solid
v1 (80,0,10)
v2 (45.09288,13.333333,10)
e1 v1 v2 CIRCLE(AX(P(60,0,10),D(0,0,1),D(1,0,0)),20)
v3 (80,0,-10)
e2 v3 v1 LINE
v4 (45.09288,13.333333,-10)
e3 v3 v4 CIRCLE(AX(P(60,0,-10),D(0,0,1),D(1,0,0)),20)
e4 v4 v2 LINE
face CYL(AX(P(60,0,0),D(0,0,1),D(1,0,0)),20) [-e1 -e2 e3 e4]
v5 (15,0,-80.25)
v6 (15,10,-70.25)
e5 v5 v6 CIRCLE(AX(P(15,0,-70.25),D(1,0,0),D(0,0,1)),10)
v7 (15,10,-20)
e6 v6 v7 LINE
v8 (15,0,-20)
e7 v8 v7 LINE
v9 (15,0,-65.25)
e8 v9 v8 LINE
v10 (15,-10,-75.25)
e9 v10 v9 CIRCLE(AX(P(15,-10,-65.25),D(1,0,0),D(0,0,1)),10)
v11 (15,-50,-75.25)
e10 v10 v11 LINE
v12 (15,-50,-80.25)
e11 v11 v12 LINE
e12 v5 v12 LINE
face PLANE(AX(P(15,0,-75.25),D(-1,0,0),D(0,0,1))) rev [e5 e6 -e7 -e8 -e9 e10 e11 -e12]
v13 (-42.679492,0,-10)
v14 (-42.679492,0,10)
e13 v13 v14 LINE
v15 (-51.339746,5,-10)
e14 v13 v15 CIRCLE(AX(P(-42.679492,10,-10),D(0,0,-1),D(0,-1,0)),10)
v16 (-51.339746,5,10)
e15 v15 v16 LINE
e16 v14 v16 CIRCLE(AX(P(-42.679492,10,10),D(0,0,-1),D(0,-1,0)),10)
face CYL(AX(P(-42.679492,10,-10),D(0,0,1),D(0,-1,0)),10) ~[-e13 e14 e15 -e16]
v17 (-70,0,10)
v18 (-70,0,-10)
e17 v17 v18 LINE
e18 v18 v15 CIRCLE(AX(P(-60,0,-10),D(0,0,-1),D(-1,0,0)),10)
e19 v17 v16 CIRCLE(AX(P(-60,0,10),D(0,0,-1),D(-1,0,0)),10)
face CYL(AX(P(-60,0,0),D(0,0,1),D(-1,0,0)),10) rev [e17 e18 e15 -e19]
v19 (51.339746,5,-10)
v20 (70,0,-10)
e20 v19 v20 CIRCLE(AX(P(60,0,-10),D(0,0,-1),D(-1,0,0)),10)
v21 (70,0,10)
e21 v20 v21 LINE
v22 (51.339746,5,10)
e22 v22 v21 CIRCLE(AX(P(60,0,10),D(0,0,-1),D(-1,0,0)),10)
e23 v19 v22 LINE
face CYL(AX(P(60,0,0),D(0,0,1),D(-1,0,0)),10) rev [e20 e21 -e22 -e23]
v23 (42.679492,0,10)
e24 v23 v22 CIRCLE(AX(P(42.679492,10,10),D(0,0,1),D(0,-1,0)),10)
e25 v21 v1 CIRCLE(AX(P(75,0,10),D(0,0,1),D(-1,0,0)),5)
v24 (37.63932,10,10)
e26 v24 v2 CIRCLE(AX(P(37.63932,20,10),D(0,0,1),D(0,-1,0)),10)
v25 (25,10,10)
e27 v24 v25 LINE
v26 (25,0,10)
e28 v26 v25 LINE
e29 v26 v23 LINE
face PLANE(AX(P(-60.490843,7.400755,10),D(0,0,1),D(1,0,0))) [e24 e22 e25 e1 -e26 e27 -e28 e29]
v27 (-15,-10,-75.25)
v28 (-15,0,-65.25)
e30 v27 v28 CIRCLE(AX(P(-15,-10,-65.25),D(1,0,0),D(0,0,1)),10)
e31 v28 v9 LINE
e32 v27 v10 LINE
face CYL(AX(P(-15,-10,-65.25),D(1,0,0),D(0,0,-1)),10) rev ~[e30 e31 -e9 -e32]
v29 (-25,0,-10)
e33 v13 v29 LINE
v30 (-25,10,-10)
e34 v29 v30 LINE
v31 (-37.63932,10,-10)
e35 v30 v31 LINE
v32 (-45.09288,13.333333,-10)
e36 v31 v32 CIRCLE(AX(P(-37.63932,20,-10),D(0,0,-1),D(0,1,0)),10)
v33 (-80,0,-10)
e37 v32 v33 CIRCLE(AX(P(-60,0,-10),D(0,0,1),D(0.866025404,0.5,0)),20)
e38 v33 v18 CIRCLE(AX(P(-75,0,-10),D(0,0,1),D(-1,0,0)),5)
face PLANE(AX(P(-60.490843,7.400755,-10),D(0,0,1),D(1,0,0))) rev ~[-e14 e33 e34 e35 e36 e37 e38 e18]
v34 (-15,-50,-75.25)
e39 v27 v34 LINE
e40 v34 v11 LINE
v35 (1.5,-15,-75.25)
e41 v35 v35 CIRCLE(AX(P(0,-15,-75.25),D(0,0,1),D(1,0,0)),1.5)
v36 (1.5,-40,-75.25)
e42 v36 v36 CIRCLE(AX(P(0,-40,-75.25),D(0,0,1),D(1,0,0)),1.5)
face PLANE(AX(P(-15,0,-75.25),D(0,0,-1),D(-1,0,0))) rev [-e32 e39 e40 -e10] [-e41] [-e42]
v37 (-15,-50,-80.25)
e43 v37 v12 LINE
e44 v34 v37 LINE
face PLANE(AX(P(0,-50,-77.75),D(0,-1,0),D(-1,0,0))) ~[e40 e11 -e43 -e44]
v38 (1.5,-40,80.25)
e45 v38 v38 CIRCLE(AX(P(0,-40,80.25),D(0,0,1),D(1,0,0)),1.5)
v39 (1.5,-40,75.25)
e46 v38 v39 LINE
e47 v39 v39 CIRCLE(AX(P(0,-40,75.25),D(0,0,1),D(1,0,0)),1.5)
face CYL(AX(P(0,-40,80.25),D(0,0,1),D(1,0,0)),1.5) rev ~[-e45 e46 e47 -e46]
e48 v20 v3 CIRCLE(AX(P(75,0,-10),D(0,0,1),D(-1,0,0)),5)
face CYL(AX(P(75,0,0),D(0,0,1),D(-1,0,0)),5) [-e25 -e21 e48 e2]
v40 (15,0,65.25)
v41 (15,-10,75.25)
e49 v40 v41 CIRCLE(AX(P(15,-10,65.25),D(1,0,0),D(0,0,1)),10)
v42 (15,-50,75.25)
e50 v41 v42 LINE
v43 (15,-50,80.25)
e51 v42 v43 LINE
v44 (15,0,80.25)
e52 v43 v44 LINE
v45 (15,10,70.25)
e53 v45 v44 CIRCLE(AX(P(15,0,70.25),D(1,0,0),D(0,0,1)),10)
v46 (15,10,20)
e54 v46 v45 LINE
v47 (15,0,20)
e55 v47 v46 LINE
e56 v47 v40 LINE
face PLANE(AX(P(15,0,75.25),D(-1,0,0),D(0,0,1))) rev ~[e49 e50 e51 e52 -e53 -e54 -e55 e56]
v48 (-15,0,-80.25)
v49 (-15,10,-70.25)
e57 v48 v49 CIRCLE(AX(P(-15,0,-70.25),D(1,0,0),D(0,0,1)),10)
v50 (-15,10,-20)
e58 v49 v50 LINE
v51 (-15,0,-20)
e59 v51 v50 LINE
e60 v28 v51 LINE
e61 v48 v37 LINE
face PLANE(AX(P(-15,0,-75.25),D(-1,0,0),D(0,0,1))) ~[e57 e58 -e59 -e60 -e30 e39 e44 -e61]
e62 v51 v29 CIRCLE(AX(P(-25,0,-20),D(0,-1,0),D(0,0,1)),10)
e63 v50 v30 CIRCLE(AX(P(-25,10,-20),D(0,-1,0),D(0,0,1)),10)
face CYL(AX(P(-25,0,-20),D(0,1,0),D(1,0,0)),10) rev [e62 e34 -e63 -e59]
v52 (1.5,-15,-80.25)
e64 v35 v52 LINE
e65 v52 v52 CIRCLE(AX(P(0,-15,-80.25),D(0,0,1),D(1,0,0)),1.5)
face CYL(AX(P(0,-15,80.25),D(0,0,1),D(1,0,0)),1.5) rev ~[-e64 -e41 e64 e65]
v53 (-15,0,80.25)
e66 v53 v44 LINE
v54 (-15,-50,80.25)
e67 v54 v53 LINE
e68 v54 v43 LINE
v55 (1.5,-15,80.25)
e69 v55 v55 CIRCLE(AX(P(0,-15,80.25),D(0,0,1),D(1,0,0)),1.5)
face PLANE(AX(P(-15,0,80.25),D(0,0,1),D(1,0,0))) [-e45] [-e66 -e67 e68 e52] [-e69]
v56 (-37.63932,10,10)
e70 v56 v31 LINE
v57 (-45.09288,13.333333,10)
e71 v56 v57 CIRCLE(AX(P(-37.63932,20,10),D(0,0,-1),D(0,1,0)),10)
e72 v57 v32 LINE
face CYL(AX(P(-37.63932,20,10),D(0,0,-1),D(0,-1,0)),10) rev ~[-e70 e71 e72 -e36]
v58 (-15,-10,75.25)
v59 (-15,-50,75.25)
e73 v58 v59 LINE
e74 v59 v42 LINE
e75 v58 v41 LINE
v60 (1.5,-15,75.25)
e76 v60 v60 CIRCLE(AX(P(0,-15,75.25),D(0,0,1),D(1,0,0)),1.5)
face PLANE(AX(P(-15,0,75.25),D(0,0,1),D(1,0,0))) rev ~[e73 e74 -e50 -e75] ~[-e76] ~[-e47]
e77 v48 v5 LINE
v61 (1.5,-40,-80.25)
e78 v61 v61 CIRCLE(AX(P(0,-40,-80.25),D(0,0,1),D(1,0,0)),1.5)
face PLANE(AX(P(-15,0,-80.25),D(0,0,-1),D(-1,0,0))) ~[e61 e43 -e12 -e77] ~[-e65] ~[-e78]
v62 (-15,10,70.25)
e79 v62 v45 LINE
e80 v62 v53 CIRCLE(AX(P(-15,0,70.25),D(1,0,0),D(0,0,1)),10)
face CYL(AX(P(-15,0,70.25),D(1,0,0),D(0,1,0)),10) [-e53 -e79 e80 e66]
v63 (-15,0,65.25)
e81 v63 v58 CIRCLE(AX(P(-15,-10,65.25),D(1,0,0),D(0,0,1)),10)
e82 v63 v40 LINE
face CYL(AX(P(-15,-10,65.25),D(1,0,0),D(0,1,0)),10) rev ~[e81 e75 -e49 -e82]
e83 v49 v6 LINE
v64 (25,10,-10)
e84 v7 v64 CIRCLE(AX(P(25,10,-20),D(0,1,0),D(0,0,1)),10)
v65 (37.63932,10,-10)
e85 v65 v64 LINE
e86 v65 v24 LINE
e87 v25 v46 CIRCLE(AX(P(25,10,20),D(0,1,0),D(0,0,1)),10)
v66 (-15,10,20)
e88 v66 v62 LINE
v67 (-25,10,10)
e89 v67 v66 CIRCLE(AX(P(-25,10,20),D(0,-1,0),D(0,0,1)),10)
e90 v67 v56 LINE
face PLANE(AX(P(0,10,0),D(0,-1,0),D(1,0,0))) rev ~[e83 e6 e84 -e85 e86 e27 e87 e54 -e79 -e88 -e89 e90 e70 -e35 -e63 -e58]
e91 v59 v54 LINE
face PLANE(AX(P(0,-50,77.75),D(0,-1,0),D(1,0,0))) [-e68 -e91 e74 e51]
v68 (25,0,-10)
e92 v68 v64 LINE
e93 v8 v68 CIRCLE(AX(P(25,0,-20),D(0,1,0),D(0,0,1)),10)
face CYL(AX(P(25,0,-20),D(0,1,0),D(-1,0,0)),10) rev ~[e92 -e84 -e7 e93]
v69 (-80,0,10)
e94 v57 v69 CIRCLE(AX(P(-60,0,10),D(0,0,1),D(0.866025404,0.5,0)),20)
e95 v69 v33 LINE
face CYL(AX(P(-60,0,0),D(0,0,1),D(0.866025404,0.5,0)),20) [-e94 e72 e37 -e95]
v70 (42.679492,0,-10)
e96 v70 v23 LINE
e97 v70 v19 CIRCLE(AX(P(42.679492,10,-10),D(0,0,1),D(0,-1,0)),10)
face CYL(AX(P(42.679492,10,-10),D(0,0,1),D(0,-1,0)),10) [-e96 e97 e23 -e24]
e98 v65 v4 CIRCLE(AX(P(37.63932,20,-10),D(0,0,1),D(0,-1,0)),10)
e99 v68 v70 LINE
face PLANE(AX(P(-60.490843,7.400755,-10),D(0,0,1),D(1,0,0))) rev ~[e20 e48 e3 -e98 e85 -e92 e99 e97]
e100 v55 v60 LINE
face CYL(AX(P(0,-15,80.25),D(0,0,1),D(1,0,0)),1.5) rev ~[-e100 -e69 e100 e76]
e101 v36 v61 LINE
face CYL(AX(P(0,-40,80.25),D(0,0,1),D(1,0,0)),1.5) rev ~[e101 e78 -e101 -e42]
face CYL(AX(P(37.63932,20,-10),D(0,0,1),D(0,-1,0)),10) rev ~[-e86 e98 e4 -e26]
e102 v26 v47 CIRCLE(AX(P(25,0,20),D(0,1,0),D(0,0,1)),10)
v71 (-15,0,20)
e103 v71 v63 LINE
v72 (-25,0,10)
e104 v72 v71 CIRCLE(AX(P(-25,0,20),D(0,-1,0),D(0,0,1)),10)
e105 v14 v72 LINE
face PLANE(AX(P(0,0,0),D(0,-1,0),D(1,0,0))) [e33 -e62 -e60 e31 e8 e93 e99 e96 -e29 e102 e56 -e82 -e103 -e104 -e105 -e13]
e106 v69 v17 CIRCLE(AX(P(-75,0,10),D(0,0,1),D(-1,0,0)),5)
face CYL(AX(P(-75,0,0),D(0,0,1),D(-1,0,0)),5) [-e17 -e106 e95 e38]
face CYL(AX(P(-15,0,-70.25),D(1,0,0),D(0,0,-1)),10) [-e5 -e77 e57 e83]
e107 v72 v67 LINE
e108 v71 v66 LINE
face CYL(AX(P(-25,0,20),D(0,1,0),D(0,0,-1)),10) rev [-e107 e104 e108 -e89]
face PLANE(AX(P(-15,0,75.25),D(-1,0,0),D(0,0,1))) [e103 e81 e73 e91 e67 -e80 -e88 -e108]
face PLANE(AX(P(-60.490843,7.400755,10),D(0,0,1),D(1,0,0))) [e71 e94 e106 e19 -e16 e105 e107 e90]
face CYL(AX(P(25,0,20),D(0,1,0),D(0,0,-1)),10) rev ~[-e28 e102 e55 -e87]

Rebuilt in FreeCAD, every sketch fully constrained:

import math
import FreeCAD as App
import Part
import Sketcher
Q = App.Units.Quantity


def edges_at(feature, points):
    """Names of the edges that pass closest to the given points."""
    edges = feature.Shape.Edges
    near = lambda p: min(range(len(edges)), key=lambda i: edges[i].distToShape(Part.Vertex(*p))[0])
    return sorted({f"Edge{near(p) + 1}" for p in points})

doc = App.newDocument("Part")
body = doc.addObject("PartDesign::Body", "Body")

sketch1 = body.newObject("Sketcher::SketchObject", "Sketch")
sketch1.AttachmentSupport = (doc.getObject("XY_Plane"), [""])
sketch1.MapMode = "FlatFace"
sketch1.addGeometry([
    Part.ArcOfCircle(Part.Circle(App.Vector(-60, 0, 0), App.Vector(0, 0, 1), 10), math.radians(0), math.radians(180)),
    Part.LineSegment(App.Vector(-50, 0, 0), App.Vector(50, 0, 0)),
    Part.ArcOfCircle(Part.Circle(App.Vector(60, 0, 0), App.Vector(0, 0, 1), 10), math.radians(0), math.radians(180)),
    Part.ArcOfCircle(Part.Circle(App.Vector(75, 0, 0), App.Vector(0, 0, 1), 5), math.radians(180), math.radians(360)),
    Part.ArcOfCircle(Part.Circle(App.Vector(60, 0, 0), App.Vector(0, 0, 1), 20), math.radians(0), math.radians(150)),
    Part.LineSegment(App.Vector(42.679492, 10, 0), App.Vector(-42.679492, 10, 0)),
    Part.ArcOfCircle(Part.Circle(App.Vector(-60, 0, 0), App.Vector(0, 0, 1), 20), math.radians(30), math.radians(180)),
    Part.ArcOfCircle(Part.Circle(App.Vector(-75, 0, 0), App.Vector(0, 0, 1), 5), math.radians(180), math.radians(360)),
], False)
sketch1.addConstraint([
    Sketcher.Constraint("Coincident", 0, 1, 1, 1),
    Sketcher.Constraint("Coincident", 1, 2, 2, 2),
    Sketcher.Constraint("Tangent", 2, 1, 3, 1),
    Sketcher.Constraint("Tangent", 3, 2, 4, 1),
    Sketcher.Constraint("Coincident", 4, 2, 5, 1),
    Sketcher.Constraint("Coincident", 5, 2, 6, 1),
    Sketcher.Constraint("Tangent", 6, 2, 7, 1),
    Sketcher.Constraint("Tangent", 7, 2, 0, 2),
    Sketcher.Constraint("Horizontal", 1),
    Sketcher.Constraint("Horizontal", 5),
    Sketcher.Constraint("Coincident", 4, 3, 2, 3),
    Sketcher.Constraint("Coincident", 6, 3, 0, 3),
    Sketcher.Constraint("Equal", 0, 2),
    Sketcher.Constraint("Equal", 4, 6),
    Sketcher.Constraint("Symmetric", 0, 3, 2, 3, -1, 1),
    Sketcher.Constraint("PointOnObject", 0, 3, -1),
    Sketcher.Constraint("PointOnObject", 3, 3, -1),
    Sketcher.Constraint("PointOnObject", 7, 3, -1),
    Sketcher.Constraint("PointOnObject", 0, 1, -1),
    Sketcher.Constraint("Radius", 0, Q("10 mm")),
    Sketcher.Constraint("Radius", 3, Q("5 mm")),
    Sketcher.Constraint("DistanceX", 1, 1, 1, 2, Q("100 mm")),
    Sketcher.Constraint("DistanceY", -1, 1, 4, 2, Q("10 mm")),
])
pad1 = body.newObject("PartDesign::Pad", "Pad")
pad1.Profile = sketch1
pad1.Length = 20
pad1.Midplane = True

sketch2 = body.newObject("Sketcher::SketchObject", "Sketch001")
sketch2.AttachmentSupport = (doc.getObject("XZ_Plane"), [""])
sketch2.MapMode = "FlatFace"
sketch2.addGeometry([
    Part.LineSegment(App.Vector(-15, 80.25, 0), App.Vector(-15, -80.25, 0)),
    Part.LineSegment(App.Vector(-15, -80.25, 0), App.Vector(15, -80.25, 0)),
    Part.LineSegment(App.Vector(15, -80.25, 0), App.Vector(15, 80.25, 0)),
    Part.LineSegment(App.Vector(15, 80.25, 0), App.Vector(-15, 80.25, 0)),
], False)
sketch2.addConstraint([
    Sketcher.Constraint("Coincident", 0, 2, 1, 1),
    Sketcher.Constraint("Coincident", 1, 2, 2, 1),
    Sketcher.Constraint("Coincident", 2, 2, 3, 1),
    Sketcher.Constraint("Coincident", 3, 2, 0, 1),
    Sketcher.Constraint("Vertical", 0),
    Sketcher.Constraint("Horizontal", 1),
    Sketcher.Constraint("Vertical", 2),
    Sketcher.Constraint("Horizontal", 3),
    Sketcher.Constraint("Symmetric", 0, 2, 2, 2, -1, 1),
    Sketcher.Constraint("DistanceX", 1, 1, 1, 2, Q("30 mm")),
    Sketcher.Constraint("DistanceY", 0, 2, 0, 1, Q("160.5 mm")),
])
pad2 = body.newObject("PartDesign::Pad", "Pad001")
pad2.Profile = sketch2
pad2.Length = 10
pad2.Reversed = True

sketch3 = body.newObject("Sketcher::SketchObject", "Sketch002")
sketch3.AttachmentSupport = (doc.getObject("XZ_Plane"), [""])
sketch3.MapMode = "FlatFace"
sketch3.addGeometry([
    Part.LineSegment(App.Vector(-15, 80.25, 0), App.Vector(-15, 75.25, 0)),
    Part.LineSegment(App.Vector(-15, 75.25, 0), App.Vector(15, 75.25, 0)),
    Part.LineSegment(App.Vector(15, 75.25, 0), App.Vector(15, 80.25, 0)),
    Part.LineSegment(App.Vector(15, 80.25, 0), App.Vector(-15, 80.25, 0)),
], False)
sketch3.addConstraint([
    Sketcher.Constraint("Coincident", 0, 2, 1, 1),
    Sketcher.Constraint("Coincident", 1, 2, 2, 1),
    Sketcher.Constraint("Coincident", 2, 2, 3, 1),
    Sketcher.Constraint("Coincident", 3, 2, 0, 1),
    Sketcher.Constraint("Vertical", 0),
    Sketcher.Constraint("Horizontal", 1),
    Sketcher.Constraint("Vertical", 2),
    Sketcher.Constraint("Horizontal", 3),
    Sketcher.Constraint("DistanceX", 1, 1, 1, 2, Q("30 mm")),
    Sketcher.Constraint("DistanceY", 0, 2, 0, 1, Q("5 mm")),
    Sketcher.Constraint("DistanceX", 0, 2, -1, 1, Q("15 mm")),
    Sketcher.Constraint("DistanceY", -1, 1, 0, 2, Q("75.25 mm")),
])
pad3 = body.newObject("PartDesign::Pad", "Pad002")
pad3.Profile = sketch3
pad3.Length = 50
doc.recompute()

mirrored = body.newObject("PartDesign::Mirrored", "Mirrored")
mirrored.Originals = [pad3]
mirrored.MirrorPlane = (doc.getObject("XY_Plane"), [""])
body.Tip = mirrored

sketch4 = body.newObject("Sketcher::SketchObject", "Sketch003")
sketch4.AttachmentSupport = (doc.getObject("XY_Plane"), [""])
sketch4.MapMode = "FlatFace"
sketch4.AttachmentOffset = App.Placement(App.Vector(0, 0, 80.25), App.Rotation())
sketch4.addGeometry([
    Part.Circle(App.Vector(0, -40, 0), App.Vector(0, 0, 1), 1.5),
    Part.Circle(App.Vector(0, -15, 0), App.Vector(0, 0, 1), 1.5),
], False)
sketch4.addConstraint([
    Sketcher.Constraint("Equal", 0, 1),
    Sketcher.Constraint("PointOnObject", 0, 3, -2),
    Sketcher.Constraint("PointOnObject", 1, 3, -2),
    Sketcher.Constraint("Diameter", 0, Q("3 mm")),
    Sketcher.Constraint("DistanceY", 0, 3, -1, 1, Q("40 mm")),
    Sketcher.Constraint("DistanceY", 1, 3, -1, 1, Q("15 mm")),
])
pocket1 = body.newObject("PartDesign::Pocket", "Pocket")
pocket1.Profile = sketch4
pocket1.Type = "ThroughAll"
pocket1.Midplane = True
doc.recompute()

fillet = body.newObject("PartDesign::Fillet", "Fillet")
fillet.Base = (pocket1, edges_at(pocket1, [
    (0, 10, -80.25),
    (0, 10, 80.25),
    (0, 0, 75.25),
    (0, 0, -75.25),
]))
fillet.Radius = 10
doc.recompute()

fillet2 = body.newObject("PartDesign::Fillet", "Fillet001")
fillet2.Base = (fillet, edges_at(fillet, [
    (-15, 5, -10),
    (15, 5, -10),
    (15, 5, 10),
    (-15, 5, 10),
]))
fillet2.Radius = 10
doc.recompute()

fillet3 = body.newObject("PartDesign::Fillet", "Fillet002")
fillet3.Base = (fillet2, edges_at(fillet2, [
    (-42.679, 10, 0),
    (42.679, 10, 0),
    (50, 0, 0),
    (-50, 0, 0),
]))
fillet3.Radius = 10

doc.recompute()
